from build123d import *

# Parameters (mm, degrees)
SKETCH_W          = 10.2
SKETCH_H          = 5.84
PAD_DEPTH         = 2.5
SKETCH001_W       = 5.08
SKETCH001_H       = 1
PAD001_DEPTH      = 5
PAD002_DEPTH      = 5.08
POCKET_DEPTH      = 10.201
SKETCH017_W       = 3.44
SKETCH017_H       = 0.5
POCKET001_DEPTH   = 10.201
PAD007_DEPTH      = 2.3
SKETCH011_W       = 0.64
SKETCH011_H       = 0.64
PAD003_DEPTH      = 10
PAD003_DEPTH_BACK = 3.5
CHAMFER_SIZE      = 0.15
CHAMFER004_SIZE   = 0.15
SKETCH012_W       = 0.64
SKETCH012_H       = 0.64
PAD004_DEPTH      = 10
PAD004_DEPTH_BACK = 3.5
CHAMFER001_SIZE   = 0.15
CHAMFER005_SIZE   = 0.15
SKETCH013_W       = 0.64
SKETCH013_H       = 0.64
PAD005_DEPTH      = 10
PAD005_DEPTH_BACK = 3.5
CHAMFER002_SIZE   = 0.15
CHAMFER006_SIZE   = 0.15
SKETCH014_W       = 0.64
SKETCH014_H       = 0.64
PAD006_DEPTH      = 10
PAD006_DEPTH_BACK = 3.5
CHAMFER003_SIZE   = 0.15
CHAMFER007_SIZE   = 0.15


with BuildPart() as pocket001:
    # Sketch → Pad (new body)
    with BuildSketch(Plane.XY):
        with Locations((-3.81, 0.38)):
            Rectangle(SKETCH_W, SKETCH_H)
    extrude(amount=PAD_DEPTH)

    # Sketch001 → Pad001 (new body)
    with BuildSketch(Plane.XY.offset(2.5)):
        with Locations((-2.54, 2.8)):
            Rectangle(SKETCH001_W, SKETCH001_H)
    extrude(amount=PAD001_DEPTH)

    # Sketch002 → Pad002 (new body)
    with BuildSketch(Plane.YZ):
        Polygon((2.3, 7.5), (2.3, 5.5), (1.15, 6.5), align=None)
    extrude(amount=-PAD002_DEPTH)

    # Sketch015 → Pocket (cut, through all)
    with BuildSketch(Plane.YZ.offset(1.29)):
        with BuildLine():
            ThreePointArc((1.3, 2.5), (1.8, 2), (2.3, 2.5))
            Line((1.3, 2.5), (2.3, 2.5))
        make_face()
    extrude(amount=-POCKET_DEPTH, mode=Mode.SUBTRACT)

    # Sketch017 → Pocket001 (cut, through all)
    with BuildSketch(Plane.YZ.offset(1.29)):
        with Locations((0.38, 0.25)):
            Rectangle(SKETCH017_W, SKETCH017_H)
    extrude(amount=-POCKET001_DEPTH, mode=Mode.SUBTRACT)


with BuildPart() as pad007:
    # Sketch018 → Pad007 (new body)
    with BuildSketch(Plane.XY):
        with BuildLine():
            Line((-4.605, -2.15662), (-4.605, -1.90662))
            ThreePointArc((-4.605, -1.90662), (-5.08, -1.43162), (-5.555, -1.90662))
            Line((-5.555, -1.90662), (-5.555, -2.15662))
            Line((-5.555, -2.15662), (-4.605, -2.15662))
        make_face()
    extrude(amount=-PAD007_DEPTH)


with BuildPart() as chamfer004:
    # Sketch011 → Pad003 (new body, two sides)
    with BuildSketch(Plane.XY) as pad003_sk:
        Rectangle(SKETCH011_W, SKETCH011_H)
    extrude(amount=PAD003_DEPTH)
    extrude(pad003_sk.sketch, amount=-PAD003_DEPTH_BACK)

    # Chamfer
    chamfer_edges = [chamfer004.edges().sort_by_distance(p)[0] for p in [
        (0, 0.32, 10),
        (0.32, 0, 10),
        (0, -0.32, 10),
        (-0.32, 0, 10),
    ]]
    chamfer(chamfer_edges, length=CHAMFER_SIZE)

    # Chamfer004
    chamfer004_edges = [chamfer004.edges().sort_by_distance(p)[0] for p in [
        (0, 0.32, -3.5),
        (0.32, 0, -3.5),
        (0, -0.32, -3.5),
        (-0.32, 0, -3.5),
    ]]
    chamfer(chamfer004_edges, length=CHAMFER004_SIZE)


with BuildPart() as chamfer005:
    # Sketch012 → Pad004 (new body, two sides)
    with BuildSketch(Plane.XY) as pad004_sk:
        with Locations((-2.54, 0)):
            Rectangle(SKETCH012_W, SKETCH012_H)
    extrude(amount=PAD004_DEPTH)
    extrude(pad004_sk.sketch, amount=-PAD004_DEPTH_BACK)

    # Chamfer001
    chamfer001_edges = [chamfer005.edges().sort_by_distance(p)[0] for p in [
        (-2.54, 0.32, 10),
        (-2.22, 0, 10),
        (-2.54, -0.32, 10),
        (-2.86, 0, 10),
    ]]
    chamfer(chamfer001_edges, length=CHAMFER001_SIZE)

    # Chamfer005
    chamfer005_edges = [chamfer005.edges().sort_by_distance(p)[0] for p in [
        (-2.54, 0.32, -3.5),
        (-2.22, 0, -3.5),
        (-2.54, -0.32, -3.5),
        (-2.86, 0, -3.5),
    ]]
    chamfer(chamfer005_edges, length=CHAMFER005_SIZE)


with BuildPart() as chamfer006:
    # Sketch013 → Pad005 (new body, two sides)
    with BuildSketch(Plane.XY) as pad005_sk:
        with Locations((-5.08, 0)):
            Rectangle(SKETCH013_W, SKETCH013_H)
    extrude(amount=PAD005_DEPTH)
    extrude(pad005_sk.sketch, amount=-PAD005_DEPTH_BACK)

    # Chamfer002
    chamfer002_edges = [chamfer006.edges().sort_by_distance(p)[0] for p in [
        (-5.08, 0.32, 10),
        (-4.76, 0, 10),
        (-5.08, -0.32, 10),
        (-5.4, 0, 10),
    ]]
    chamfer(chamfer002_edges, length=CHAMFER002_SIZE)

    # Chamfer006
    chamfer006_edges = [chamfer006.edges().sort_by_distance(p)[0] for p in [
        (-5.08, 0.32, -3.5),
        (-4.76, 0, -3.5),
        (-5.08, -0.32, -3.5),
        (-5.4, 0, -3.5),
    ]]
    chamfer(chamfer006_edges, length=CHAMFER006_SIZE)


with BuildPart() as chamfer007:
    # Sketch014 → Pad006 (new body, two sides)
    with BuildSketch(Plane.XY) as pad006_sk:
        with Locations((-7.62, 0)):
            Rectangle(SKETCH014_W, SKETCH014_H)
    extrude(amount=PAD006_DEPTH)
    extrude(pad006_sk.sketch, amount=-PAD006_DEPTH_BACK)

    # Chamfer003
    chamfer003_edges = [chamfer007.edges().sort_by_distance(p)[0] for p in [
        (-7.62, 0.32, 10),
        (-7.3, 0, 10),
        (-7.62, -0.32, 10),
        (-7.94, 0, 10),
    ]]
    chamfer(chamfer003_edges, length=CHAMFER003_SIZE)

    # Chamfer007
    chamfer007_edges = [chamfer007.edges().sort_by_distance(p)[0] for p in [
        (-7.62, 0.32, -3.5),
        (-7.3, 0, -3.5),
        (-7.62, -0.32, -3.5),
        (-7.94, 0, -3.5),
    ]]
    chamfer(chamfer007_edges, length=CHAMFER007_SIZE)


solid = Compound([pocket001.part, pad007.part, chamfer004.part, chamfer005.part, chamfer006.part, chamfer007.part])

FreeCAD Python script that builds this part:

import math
import FreeCAD as App
import Part
import Sketcher

V = App.Vector
Q = App.Units.Quantity


def edges_at(feature, points):
    """Names of the edges that pass closest to the given points."""
    edges = feature.Shape.Edges
    near = lambda p: min(range(len(edges)), key=lambda i: edges[i].distToShape(Part.Vertex(*p))[0])
    return sorted({f"Edge{near(p) + 1}" for p in points})

doc = App.newDocument("Part")
body = doc.addObject("PartDesign::Body", "Body")

sketch1 = body.newObject("Sketcher::SketchObject", "Sketch")
sketch1.AttachmentSupport = (doc.getObject("XY_Plane"), [""])
sketch1.MapMode = "FlatFace"
sketch1.addGeometry([
    Part.LineSegment(V(-9, 3, 0), V(-9, -3, 0)),
    Part.LineSegment(V(-9, -3, 0), V(1, -3, 0)),
    Part.LineSegment(V(1, -3, 0), V(1, 3, 0)),
    Part.LineSegment(V(1, 3, 0), V(-9, 3, 0)),
], False)
sketch1.addConstraint([
    Sketcher.Constraint("Coincident", 0, 2, 1, 1),
    Sketcher.Constraint("Coincident", 1, 2, 2, 1),
    Sketcher.Constraint("Coincident", 2, 2, 3, 1),
    Sketcher.Constraint("Coincident", 3, 2, 0, 1),
    Sketcher.Constraint("Vertical", 0),
    Sketcher.Constraint("Horizontal", 1),
    Sketcher.Constraint("Vertical", 2),
    Sketcher.Constraint("Horizontal", 3),
    Sketcher.Constraint("DistanceX", 1, 1, 1, 2, Q("10.2 mm")),
    Sketcher.Constraint("DistanceY", 0, 2, 0, 1, Q("5.84 mm")),
    Sketcher.Constraint("DistanceY", -1, 1, 2, 2, Q("3.3 mm")),
    Sketcher.Constraint("DistanceX", 0, 2, -1, 1, Q("8.91 mm")),
])
pad1 = body.newObject("PartDesign::Pad", "Pad")
pad1.Profile = sketch1
pad1.Length = 2.5

sketch2 = body.newObject("Sketcher::SketchObject", "Sketch001")
sketch2.AttachmentSupport = (doc.getObject("XY_Plane"), [""])
sketch2.MapMode = "FlatFace"
sketch2.AttachmentOffset = App.Placement(V(0, 0, 2.5), App.Rotation())
sketch2.addGeometry([
    Part.LineSegment(V(-5.1, 3.3, 0), V(-5.1, 2.3, 0)),
    Part.LineSegment(V(-5.1, 2.3, 0), V(0, 2.3, 0)),
    Part.LineSegment(V(0, 2.3, 0), V(0, 3.3, 0)),
    Part.LineSegment(V(0, 3.3, 0), V(-5.1, 3.3, 0)),
], False)
sketch2.addConstraint([
    Sketcher.Constraint("Coincident", 0, 2, 1, 1),
    Sketcher.Constraint("Coincident", 1, 2, 2, 1),
    Sketcher.Constraint("Coincident", 2, 2, 3, 1),
    Sketcher.Constraint("Coincident", 3, 2, 0, 1),
    Sketcher.Constraint("Vertical", 0),
    Sketcher.Constraint("Horizontal", 1),
    Sketcher.Constraint("Vertical", 2),
    Sketcher.Constraint("Horizontal", 3),
    Sketcher.Constraint("PointOnObject", 1, 2, -2),
    Sketcher.Constraint("DistanceY", 0, 2, 0, 1, Q("1 mm")),
    Sketcher.Constraint("DistanceX", 1, 1, 1, 2, Q("5.08 mm")),
    Sketcher.Constraint("DistanceY", -1, 1, 0, 2, Q("2.3 mm")),
])
pad2 = body.newObject("PartDesign::Pad", "Pad001")
pad2.Profile = sketch2
pad2.Length = 5

sketch3 = body.newObject("Sketcher::SketchObject", "Sketch002")
sketch3.AttachmentSupport = (doc.getObject("YZ_Plane"), [""])
sketch3.MapMode = "FlatFace"
sketch3.addGeometry([
    Part.LineSegment(V(2.3, 5.5, 0), V(2.3, 7.5, 0)),
    Part.LineSegment(V(2.3, 7.5, 0), V(1.1, 6.5, 0)),
    Part.LineSegment(V(1.1, 6.5, 0), V(2.3, 5.5, 0)),
], False)
sketch3.addConstraint([
    Sketcher.Constraint("Coincident", 0, 2, 1, 1),
    Sketcher.Constraint("Coincident", 1, 2, 2, 1),
    Sketcher.Constraint("Coincident", 2, 2, 0, 1),
    Sketcher.Constraint("Vertical", 0),
    Sketcher.Constraint("Equal", 1, 2),
    Sketcher.Constraint("DistanceY", 0, 1, 0, 2, Q("2 mm")),
    Sketcher.Constraint("DistanceX", -1, 1, 0, 2, Q("2.3 mm")),
    Sketcher.Constraint("DistanceY", -1, 1, 0, 2, Q("7.5 mm")),
    Sketcher.Constraint("DistanceX", -1, 1, 1, 2, Q("1.15 mm")),
])
pad3 = body.newObject("PartDesign::Pad", "Pad002")
pad3.Profile = sketch3
pad3.Length = 5.08
pad3.Reversed = True

sketch4 = body.newObject("Sketcher::SketchObject", "Sketch003")
sketch4.AttachmentSupport = (doc.getObject("YZ_Plane"), [""])
sketch4.MapMode = "FlatFace"
sketch4.AttachmentOffset = App.Placement(V(0, 0, 1.29), App.Rotation())
sketch4.addGeometry([
    Part.ArcOfCircle(Part.Circle(V(1.8, 2.5, 0), V(0, 0, 1), 0.5), math.radians(180), math.radians(360)),
    Part.LineSegment(V(2.3, 2.5, 0), V(1.3, 2.5, 0)),
], False)
sketch4.addConstraint([
    Sketcher.Constraint("Coincident", 0, 1, 1, 2),
    Sketcher.Constraint("Coincident", 1, 1, 0, 2),
    Sketcher.Constraint("Horizontal", 1),
    Sketcher.Constraint("Radius", 0, Q("0.5 mm")),
    Sketcher.Constraint("DistanceX", -1, 1, 0, 3, Q("1.8 mm")),
    Sketcher.Constraint("DistanceY", -1, 1, 0, 3, Q("2.5 mm")),
    Sketcher.Constraint("DistanceY", -1, 1, 0, 1, Q("2.5 mm")),
])
pocket1 = body.newObject("PartDesign::Pocket", "Pocket")
pocket1.Profile = sketch4
pocket1.Type = "ThroughAll"

sketch5 = body.newObject("Sketcher::SketchObject", "Sketch004")
sketch5.AttachmentSupport = (doc.getObject("YZ_Plane"), [""])
sketch5.MapMode = "FlatFace"
sketch5.AttachmentOffset = App.Placement(V(0, 0, 1.29), App.Rotation())
sketch5.addGeometry([
    Part.LineSegment(V(-1.3, 0.5, 0), V(-1.3, 0, 0)),
    Part.LineSegment(V(-1.3, 0, 0), V(2.1, 0, 0)),
    Part.LineSegment(V(2.1, 0, 0), V(2.1, 0.5, 0)),
    Part.LineSegment(V(2.1, 0.5, 0), V(-1.3, 0.5, 0)),
], False)
sketch5.addConstraint([
    Sketcher.Constraint("Coincident", 0, 2, 1, 1),
    Sketcher.Constraint("Coincident", 1, 2, 2, 1),
    Sketcher.Constraint("Coincident", 2, 2, 3, 1),
    Sketcher.Constraint("Coincident", 3, 2, 0, 1),
    Sketcher.Constraint("Vertical", 0),
    Sketcher.Constraint("Horizontal", 1),
    Sketcher.Constraint("Vertical", 2),
    Sketcher.Constraint("Horizontal", 3),
    Sketcher.Constraint("PointOnObject", 0, 2, -1),
    Sketcher.Constraint("DistanceY", 0, 2, 0, 1, Q("0.5 mm")),
    Sketcher.Constraint("DistanceX", 1, 1, 1, 2, Q("3.44 mm")),
    Sketcher.Constraint("DistanceX", -1, 1, 1, 2, Q("2.1 mm")),
])
pocket2 = body.newObject("PartDesign::Pocket", "Pocket001")
pocket2.Profile = sketch5
pocket2.Type = "ThroughAll"
body2 = doc.addObject("PartDesign::Body", "Body001")

sketch6 = body2.newObject("Sketcher::SketchObject", "Sketch005")
sketch6.AttachmentSupport = (doc.getObject("XY_Plane001"), [""])
sketch6.MapMode = "FlatFace"
sketch6.addGeometry([
    Part.LineSegment(V(-4.61, -2.16, 0), V(-4.61, -1.91, 0)),
    Part.ArcOfCircle(Part.Circle(V(-5.08, -1.91, 0), V(0, 0, 1), 0.47), math.radians(0), math.radians(180)),
    Part.LineSegment(V(-5.55, -1.91, 0), V(-5.55, -2.16, 0)),
    Part.LineSegment(V(-5.55, -2.16, 0), V(-4.61, -2.16, 0)),
], False)
sketch6.addConstraint([
    Sketcher.Constraint("Tangent", 0, 2, 1, 1),
    Sketcher.Constraint("Tangent", 1, 2, 2, 1),
    Sketcher.Constraint("Coincident", 2, 2, 3, 1),
    Sketcher.Constraint("Coincident", 3, 2, 0, 1),
    Sketcher.Constraint("Vertical", 0),
    Sketcher.Constraint("Vertical", 2),
    Sketcher.Constraint("Horizontal", 3),
    Sketcher.Constraint("Radius", 1, Q("0.475 mm")),
    Sketcher.Constraint("DistanceY", 0, 1, 0, 2, Q("0.25 mm")),
    Sketcher.Constraint("DistanceX", 1, 3, -1, 1, Q("5.08 mm")),
    Sketcher.Constraint("DistanceY", 1, 3, -1, 1, Q("1.90662 mm")),
])
pad4 = body2.newObject("PartDesign::Pad", "Pad003")
pad4.Profile = sketch6
pad4.Length = 2.3
pad4.Reversed = True
body3 = doc.addObject("PartDesign::Body", "Body002")

sketch7 = body3.newObject("Sketcher::SketchObject", "Sketch006")
sketch7.AttachmentSupport = (doc.getObject("XY_Plane002"), [""])
sketch7.MapMode = "FlatFace"
sketch7.addGeometry([
    Part.LineSegment(V(-0.3, 0.3, 0), V(-0.3, -0.3, 0)),
    Part.LineSegment(V(-0.3, -0.3, 0), V(0.3, -0.3, 0)),
    Part.LineSegment(V(0.3, -0.3, 0), V(0.3, 0.3, 0)),
    Part.LineSegment(V(0.3, 0.3, 0), V(-0.3, 0.3, 0)),
], False)
sketch7.addConstraint([
    Sketcher.Constraint("Coincident", 0, 2, 1, 1),
    Sketcher.Constraint("Coincident", 1, 2, 2, 1),
    Sketcher.Constraint("Coincident", 2, 2, 3, 1),
    Sketcher.Constraint("Coincident", 3, 2, 0, 1),
    Sketcher.Constraint("Vertical", 0),
    Sketcher.Constraint("Horizontal", 1),
    Sketcher.Constraint("Vertical", 2),
    Sketcher.Constraint("Horizontal", 3),
    Sketcher.Constraint("Symmetric", 0, 2, 2, 2, -1, 1),
    Sketcher.Constraint("Equal", 3, 0),
    Sketcher.Constraint("DistanceX", 1, 1, 1, 2, Q("0.64 mm")),
])
pad5 = body3.newObject("PartDesign::Pad", "Pad004")
pad5.Profile = sketch7
pad5.Type = "TwoLengths"
pad5.Length = 10
pad5.Length2 = 3.5
doc.recompute()

chamfer = body3.newObject("PartDesign::Chamfer", "Chamfer")
chamfer.Base = (pad5, edges_at(pad5, [
    (0, 0.32, 10),
    (0.32, 0, 10),
    (0, -0.32, 10),
    (-0.32, 0, 10),
]))
chamfer.Size = 0.15
doc.recompute()

chamfer2 = body3.newObject("PartDesign::Chamfer", "Chamfer001")
chamfer2.Base = (chamfer, edges_at(chamfer, [
    (0, 0.32, -3.5),
    (0.32, 0, -3.5),
    (0, -0.32, -3.5),
    (-0.32, 0, -3.5),
]))
chamfer2.Size = 0.15
body4 = doc.addObject("PartDesign::Body", "Body003")

sketch8 = body4.newObject("Sketcher::SketchObject", "Sketch007")
sketch8.AttachmentSupport = (doc.getObject("XY_Plane003"), [""])
sketch8.MapMode = "FlatFace"
sketch8.addGeometry([
    Part.LineSegment(V(-2.9, 0.3, 0), V(-2.9, -0.3, 0)),
    Part.LineSegment(V(-2.9, -0.3, 0), V(-2.2, -0.3, 0)),
    Part.LineSegment(V(-2.2, -0.3, 0), V(-2.2, 0.3, 0)),
    Part.LineSegment(V(-2.2, 0.3, 0), V(-2.9, 0.3, 0)),
], False)
sketch8.addConstraint([
    Sketcher.Constraint("Coincident", 0, 2, 1, 1),
    Sketcher.Constraint("Coincident", 1, 2, 2, 1),
    Sketcher.Constraint("Coincident", 2, 2, 3, 1),
    Sketcher.Constraint("Coincident", 3, 2, 0, 1),
    Sketcher.Constraint("Vertical", 0),
    Sketcher.Constraint("Horizontal", 1),
    Sketcher.Constraint("Vertical", 2),
    Sketcher.Constraint("Horizontal", 3),
    Sketcher.Constraint("Equal", 3, 0),
    Sketcher.Constraint("DistanceX", 1, 1, 1, 2, Q("0.64 mm")),
    Sketcher.Constraint("DistanceX", 0, 2, -1, 1, Q("2.86 mm")),
    Sketcher.Constraint("DistanceY", 0, 2, -1, 1, Q("0.32 mm")),
])
pad6 = body4.newObject("PartDesign::Pad", "Pad005")
pad6.Profile = sketch8
pad6.Type = "TwoLengths"
pad6.Length = 10
pad6.Length2 = 3.5
doc.recompute()

chamfer3 = body4.newObject("PartDesign::Chamfer", "Chamfer002")
chamfer3.Base = (pad6, edges_at(pad6, [
    (-2.54, 0.32, 10),
    (-2.22, 0, 10),
    (-2.54, -0.32, 10),
    (-2.86, 0, 10),
]))
chamfer3.Size = 0.15
doc.recompute()

chamfer4 = body4.newObject("PartDesign::Chamfer", "Chamfer003")
chamfer4.Base = (chamfer3, edges_at(chamfer3, [
    (-2.54, 0.32, -3.5),
    (-2.22, 0, -3.5),
    (-2.54, -0.32, -3.5),
    (-2.86, 0, -3.5),
]))
chamfer4.Size = 0.15
body5 = doc.addObject("PartDesign::Body", "Body004")

sketch9 = body5.newObject("Sketcher::SketchObject", "Sketch008")
sketch9.AttachmentSupport = (doc.getObject("XY_Plane004"), [""])
sketch9.MapMode = "FlatFace"
sketch9.addGeometry([
    Part.LineSegment(V(-5.4, 0.3, 0), V(-5.4, -0.3, 0)),
    Part.LineSegment(V(-5.4, -0.3, 0), V(-4.8, -0.3, 0)),
    Part.LineSegment(V(-4.8, -0.3, 0), V(-4.8, 0.3, 0)),
    Part.LineSegment(V(-4.8, 0.3, 0), V(-5.4, 0.3, 0)),
], False)
sketch9.addConstraint([
    Sketcher.Constraint("Coincident", 0, 2, 1, 1),
    Sketcher.Constraint("Coincident", 1, 2, 2, 1),
    Sketcher.Constraint("Coincident", 2, 2, 3, 1),
    Sketcher.Constraint("Coincident", 3, 2, 0, 1),
    Sketcher.Constraint("Vertical", 0),
    Sketcher.Constraint("Horizontal", 1),
    Sketcher.Constraint("Vertical", 2),
    Sketcher.Constraint("Horizontal", 3),
    Sketcher.Constraint("Equal", 3, 0),
    Sketcher.Constraint("DistanceX", 1, 1, 1, 2, Q("0.64 mm")),
    Sketcher.Constraint("DistanceX", 0, 2, -1, 1, Q("5.4 mm")),
    Sketcher.Constraint("DistanceY", 0, 2, -1, 1, Q("0.32 mm")),
])
pad7 = body5.newObject("PartDesign::Pad", "Pad006")
pad7.Profile = sketch9
pad7.Type = "TwoLengths"
pad7.Length = 10
pad7.Length2 = 3.5
doc.recompute()

chamfer5 = body5.newObject("PartDesign::Chamfer", "Chamfer004")
chamfer5.Base = (pad7, edges_at(pad7, [
    (-5.08, 0.32, 10),
    (-4.76, 0, 10),
    (-5.08, -0.32, 10),
    (-5.4, 0, 10),
]))
chamfer5.Size = 0.15
doc.recompute()

chamfer6 = body5.newObject("PartDesign::Chamfer", "Chamfer005")
chamfer6.Base = (chamfer5, edges_at(chamfer5, [
    (-5.08, 0.32, -3.5),
    (-4.76, 0, -3.5),
    (-5.08, -0.32, -3.5),
    (-5.4, 0, -3.5),
]))
chamfer6.Size = 0.15
body6 = doc.addObject("PartDesign::Body", "Body005")

sketch10 = body6.newObject("Sketcher::SketchObject", "Sketch009")
sketch10.AttachmentSupport = (doc.getObject("XY_Plane005"), [""])
sketch10.MapMode = "FlatFace"
sketch10.addGeometry([
    Part.LineSegment(V(-7.9, 0.3, 0), V(-7.9, -0.3, 0)),
    Part.LineSegment(V(-7.9, -0.3, 0), V(-7.3, -0.3, 0)),
    Part.LineSegment(V(-7.3, -0.3, 0), V(-7.3, 0.3, 0)),
    Part.LineSegment(V(-7.3, 0.3, 0), V(-7.9, 0.3, 0)),
], False)
sketch10.addConstraint([
    Sketcher.Constraint("Coincident", 0, 2, 1, 1),
    Sketcher.Constraint("Coincident", 1, 2, 2, 1),
    Sketcher.Constraint("Coincident", 2, 2, 3, 1),
    Sketcher.Constraint("Coincident", 3, 2, 0, 1),
    Sketcher.Constraint("Vertical", 0),
    Sketcher.Constraint("Horizontal", 1),
    Sketcher.Constraint("Vertical", 2),
    Sketcher.Constraint("Horizontal", 3),
    Sketcher.Constraint("Equal", 3, 0),
    Sketcher.Constraint("DistanceX", 1, 1, 1, 2, Q("0.64 mm")),
    Sketcher.Constraint("DistanceX", 1, 2, -1, 1, Q("7.3 mm")),
    Sketcher.Constraint("DistanceY", 0, 2, -1, 1, Q("0.32 mm")),
])
pad8 = body6.newObject("PartDesign::Pad", "Pad007")
pad8.Profile = sketch10
pad8.Type = "TwoLengths"
pad8.Length = 10
pad8.Length2 = 3.5
doc.recompute()

chamfer7 = body6.newObject("PartDesign::Chamfer", "Chamfer006")
chamfer7.Base = (pad8, edges_at(pad8, [
    (-7.62, 0.32, 10),
    (-7.3, 0, 10),
    (-7.62, -0.32, 10),
    (-7.94, 0, 10),
]))
chamfer7.Size = 0.15
doc.recompute()

chamfer8 = body6.newObject("PartDesign::Chamfer", "Chamfer007")
chamfer8.Base = (chamfer7, edges_at(chamfer7, [
    (-7.62, 0.32, -3.5),
    (-7.3, 0, -3.5),
    (-7.62, -0.32, -3.5),
    (-7.94, 0, -3.5),
]))
chamfer8.Size = 0.15

doc.recompute()
